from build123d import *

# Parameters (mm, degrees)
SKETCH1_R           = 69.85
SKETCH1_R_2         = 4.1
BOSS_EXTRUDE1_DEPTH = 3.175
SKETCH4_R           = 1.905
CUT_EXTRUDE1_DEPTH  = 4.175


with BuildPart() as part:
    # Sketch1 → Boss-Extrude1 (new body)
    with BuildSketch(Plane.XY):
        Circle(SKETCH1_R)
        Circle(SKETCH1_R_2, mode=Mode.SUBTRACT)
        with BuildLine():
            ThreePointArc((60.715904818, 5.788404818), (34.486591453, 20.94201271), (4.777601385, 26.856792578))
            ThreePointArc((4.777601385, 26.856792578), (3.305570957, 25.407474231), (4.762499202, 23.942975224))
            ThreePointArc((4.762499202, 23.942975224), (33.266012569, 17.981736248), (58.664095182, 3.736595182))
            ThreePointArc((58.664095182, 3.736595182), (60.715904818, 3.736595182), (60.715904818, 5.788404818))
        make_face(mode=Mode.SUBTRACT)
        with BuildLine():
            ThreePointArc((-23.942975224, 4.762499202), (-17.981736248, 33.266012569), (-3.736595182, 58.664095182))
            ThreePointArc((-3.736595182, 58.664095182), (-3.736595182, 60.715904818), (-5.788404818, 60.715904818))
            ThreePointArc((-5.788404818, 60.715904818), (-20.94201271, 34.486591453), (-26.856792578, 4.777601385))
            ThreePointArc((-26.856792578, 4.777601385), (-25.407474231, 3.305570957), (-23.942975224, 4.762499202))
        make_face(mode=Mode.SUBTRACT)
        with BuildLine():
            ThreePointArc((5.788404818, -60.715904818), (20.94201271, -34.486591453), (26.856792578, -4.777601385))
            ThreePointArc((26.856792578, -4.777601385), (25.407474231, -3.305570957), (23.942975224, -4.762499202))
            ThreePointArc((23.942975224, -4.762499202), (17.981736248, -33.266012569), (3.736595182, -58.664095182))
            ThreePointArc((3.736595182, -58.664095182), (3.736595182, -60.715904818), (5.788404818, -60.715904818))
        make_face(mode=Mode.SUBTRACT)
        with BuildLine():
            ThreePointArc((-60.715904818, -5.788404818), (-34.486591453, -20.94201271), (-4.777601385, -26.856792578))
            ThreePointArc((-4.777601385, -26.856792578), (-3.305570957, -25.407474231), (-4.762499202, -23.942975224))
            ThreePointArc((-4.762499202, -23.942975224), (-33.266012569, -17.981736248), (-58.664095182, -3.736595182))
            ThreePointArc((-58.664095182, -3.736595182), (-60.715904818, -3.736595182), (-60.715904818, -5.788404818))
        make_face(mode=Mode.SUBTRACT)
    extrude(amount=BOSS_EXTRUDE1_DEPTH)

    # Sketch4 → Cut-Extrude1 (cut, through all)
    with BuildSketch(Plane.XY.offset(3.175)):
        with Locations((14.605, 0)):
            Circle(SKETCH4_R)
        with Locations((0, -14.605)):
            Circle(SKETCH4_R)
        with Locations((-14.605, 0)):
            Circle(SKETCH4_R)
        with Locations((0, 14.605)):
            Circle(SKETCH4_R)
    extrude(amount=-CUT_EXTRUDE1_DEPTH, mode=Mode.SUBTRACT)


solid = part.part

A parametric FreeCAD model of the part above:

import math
import FreeCAD as App
import Part
import Sketcher
Q = App.Units.Quantity

doc = App.newDocument("Part")
body = doc.addObject("PartDesign::Body", "Body")

sketch1 = doc.addObject("Sketcher::SketchObject", "Sketch")
body.addObject(sketch1)
sketch1.AttachmentSupport = (doc.XY_Plane, [""])
sketch1.MapMode = "FlatFace"
sketch1.addGeometry(Part.Circle(App.Vector(0, 0, 0), App.Vector(0, 0, 1), 69.85), False)
sketch1.addGeometry(Part.ArcOfCircle(Part.Circle(App.Vector(-1.725997, 66.040062, 0), App.Vector(0, 0, 1), 92.946963), math.radians(-129.394922), math.radians(-91.881455)), False)
sketch1.addGeometry(Part.ArcOfCircle(Part.Circle(App.Vector(-59.69, -4.7625, 0), App.Vector(0, 0, 1), 1.450849), math.radians(45), math.radians(225)), False)
sketch1.addGeometry(Part.ArcOfCircle(Part.Circle(App.Vector(0.380004, 71.770806, 0), App.Vector(0, 0, 1), 95.851829), math.radians(-128.024141), math.radians(-93.075426)), False)
sketch1.addGeometry(Part.ArcOfCircle(Part.Circle(App.Vector(-4.762499, -25.399923, 0), App.Vector(0, 0, 1), 1.456948), math.radians(-90.593918), math.radians(90)), False)
sketch1.addGeometry(Part.ArcOfCircle(Part.Circle(App.Vector(-66.040062, -1.725997, 0), App.Vector(0, 0, 1), 92.946963), math.radians(-39.394922), math.radians(-1.881455)), False)
sketch1.addGeometry(Part.ArcOfCircle(Part.Circle(App.Vector(4.7625, -59.69, 0), App.Vector(0, 0, 1), 1.450849), math.radians(135), math.radians(315)), False)
sketch1.addGeometry(Part.ArcOfCircle(Part.Circle(App.Vector(-71.770806, 0.380004, 0), App.Vector(0, 0, 1), 95.851829), math.radians(-38.024141), math.radians(-3.075426)), False)
sketch1.addGeometry(Part.ArcOfCircle(Part.Circle(App.Vector(25.399923, -4.762499, 0), App.Vector(0, 0, 1), 1.456948), math.radians(-0.593918), math.radians(180)), False)
sketch1.addGeometry(Part.ArcOfCircle(Part.Circle(App.Vector(71.770806, -0.380004, 0), App.Vector(0, 0, 1), 95.851829), math.radians(141.975859), math.radians(176.924574)), False)
sketch1.addGeometry(Part.ArcOfCircle(Part.Circle(App.Vector(-25.399923, 4.762499, 0), App.Vector(0, 0, 1), 1.456948), math.radians(179.406082), math.radians(360)), False)
sketch1.addGeometry(Part.ArcOfCircle(Part.Circle(App.Vector(66.040062, 1.725997, 0), App.Vector(0, 0, 1), 92.946963), math.radians(140.605078), math.radians(178.118545)), False)
sketch1.addGeometry(Part.ArcOfCircle(Part.Circle(App.Vector(-4.7625, 59.69, 0), App.Vector(0, 0, 1), 1.450849), math.radians(-45), math.radians(135)), False)
sketch1.addGeometry(Part.Circle(App.Vector(0, 0, 0), App.Vector(0, 0, 1), 4.1), False)
sketch1.addGeometry(Part.ArcOfCircle(Part.Circle(App.Vector(1.725997, -66.040062, 0), App.Vector(0, 0, 1), 92.946963), math.radians(50.605078), math.radians(88.118545)), False)
sketch1.addGeometry(Part.ArcOfCircle(Part.Circle(App.Vector(59.69, 4.7625, 0), App.Vector(0, 0, 1), 1.450849), math.radians(-135), math.radians(45)), False)
sketch1.addGeometry(Part.ArcOfCircle(Part.Circle(App.Vector(-0.380004, -71.770806, 0), App.Vector(0, 0, 1), 95.851829), math.radians(51.975859), math.radians(86.924574)), False)
sketch1.addGeometry(Part.ArcOfCircle(Part.Circle(App.Vector(4.762499, 25.399923, 0), App.Vector(0, 0, 1), 1.456948), math.radians(89.406082), math.radians(270)), False)
sketch1.addConstraint(Sketcher.Constraint("Coincident", 1, 1, 2, 2))
sketch1.addConstraint(Sketcher.Constraint("Coincident", 2, 1, 3, 1))
sketch1.addConstraint(Sketcher.Constraint("Coincident", 3, 2, 4, 2))
sketch1.addConstraint(Sketcher.Constraint("Coincident", 4, 1, 1, 2))
sketch1.addConstraint(Sketcher.Constraint("Coincident", 5, 1, 6, 2))
sketch1.addConstraint(Sketcher.Constraint("Coincident", 6, 1, 7, 1))
sketch1.addConstraint(Sketcher.Constraint("Coincident", 7, 2, 8, 2))
sketch1.addConstraint(Sketcher.Constraint("Coincident", 8, 1, 5, 2))
sketch1.addConstraint(Sketcher.Constraint("Coincident", 9, 2, 10, 2))
sketch1.addConstraint(Sketcher.Constraint("Coincident", 10, 1, 11, 2))
sketch1.addConstraint(Sketcher.Constraint("Coincident", 11, 1, 12, 2))
sketch1.addConstraint(Sketcher.Constraint("Coincident", 12, 1, 9, 1))
sketch1.addConstraint(Sketcher.Constraint("Coincident", 14, 1, 15, 2))
sketch1.addConstraint(Sketcher.Constraint("Coincident", 15, 1, 16, 1))
sketch1.addConstraint(Sketcher.Constraint("Coincident", 16, 2, 17, 2))
sketch1.addConstraint(Sketcher.Constraint("Coincident", 17, 1, 14, 2))
sketch1.addConstraint(Sketcher.Constraint("Coincident", 0, 3, -1, 1))
sketch1.addConstraint(Sketcher.Constraint("Coincident", 13, 3, -1, 1))
sketch1.addConstraint(Sketcher.Constraint("Equal", 1, 5))
sketch1.addConstraint(Sketcher.Constraint("Equal", 2, 6))
sketch1.addConstraint(Sketcher.Constraint("Equal", 3, 7))
sketch1.addConstraint(Sketcher.Constraint("Equal", 4, 8))
sketch1.addConstraint(Sketcher.Constraint("Equal", 7, 9))
sketch1.addConstraint(Sketcher.Constraint("Equal", 8, 10))
sketch1.addConstraint(Sketcher.Constraint("Equal", 5, 11))
sketch1.addConstraint(Sketcher.Constraint("Equal", 6, 12))
sketch1.addConstraint(Sketcher.Constraint("Equal", 11, 14))
sketch1.addConstraint(Sketcher.Constraint("Equal", 12, 15))
sketch1.addConstraint(Sketcher.Constraint("Equal", 9, 16))
sketch1.addConstraint(Sketcher.Constraint("Equal", 10, 17))
sketch1.addConstraint(Sketcher.Constraint("Symmetric", 7, 3, 9, 3, -1, 1))
sketch1.addConstraint(Sketcher.Constraint("Symmetric", 8, 3, 10, 3, -1, 1))
sketch1.addConstraint(Sketcher.Constraint("Symmetric", 5, 3, 11, 3, -1, 1))
sketch1.addConstraint(Sketcher.Constraint("Symmetric", 6, 3, 12, 3, -1, 1))
sketch1.addConstraint(Sketcher.Constraint("Symmetric", 1, 3, 14, 3, -1, 1))
sketch1.addConstraint(Sketcher.Constraint("Symmetric", 2, 3, 15, 3, -1, 1))
sketch1.addConstraint(Sketcher.Constraint("Symmetric", 3, 3, 16, 3, -1, 1))
sketch1.addConstraint(Sketcher.Constraint("Symmetric", 4, 3, 17, 3, -1, 1))
sketch1.addConstraint(Sketcher.Constraint("Horizontal", 2, 3, 8, 3))
sketch1.addConstraint(Sketcher.Constraint("Horizontal", 8, 3, 7, 2))
sketch1.addConstraint(Sketcher.Constraint("Vertical", 4, 3, 12, 3))
sketch1.addConstraint(Sketcher.Constraint("Vertical", 12, 3, 3, 2))
sketch1.addConstraint(Sketcher.Constraint("Diameter", 0, Q("5.5 in")))
sketch1.addConstraint(Sketcher.Constraint("Diameter", 13, 8.2))
sketch1.addConstraint(Sketcher.Constraint("DistanceX", 2, 3, -1, 1, Q("2.35 in")))
sketch1.addConstraint(Sketcher.Constraint("DistanceY", 6, 3, -1, 1, Q("2.35 in")))
sketch1.addConstraint(Sketcher.Constraint("DistanceY", 2, 3, -1, 1, Q("0.1875 in")))
sketch1.addConstraint(Sketcher.Constraint("DistanceX", 4, 3, -1, 1, Q("0.1875 in")))
sketch1.addConstraint(Sketcher.Constraint("Radius", 2, 1.450849))
sketch1.addConstraint(Sketcher.Constraint("Radius", 3, 95.851829))
sketch1.addConstraint(Sketcher.Constraint("Radius", 1, 92.946963))
sketch1.addConstraint(Sketcher.Constraint("Radius", 4, 1.456948))
sketch1.addConstraint(Sketcher.Constraint("DistanceX", 4, 1, -1, 1, 4.777601))
sketch1.addConstraint(Sketcher.Constraint("DistanceY", 8, 1, -1, 1, 4.777601))
sketch1.addConstraint(Sketcher.Constraint("DistanceX", 1, 3, 3, 3, 2.106))
sketch1.addConstraint(Sketcher.Constraint("DistanceY", 5, 3, 7, 3, 2.106))
sketch1.addConstraint(Sketcher.Constraint("DistanceX", 7, 3, 1, 1, 11.054901))
sketch1.addConstraint(Sketcher.Constraint("DistanceY", 2, 1, 5, 3, 2.010598))
sketch1.addConstraint(Sketcher.Constraint("DistanceY", 16, 3, 5, 1, 11.054901))
sketch1.addConstraint(Sketcher.Constraint("DistanceX", 14, 3, 6, 1, 2.010598))
pad1 = doc.addObject("PartDesign::Pad", "Pad")
body.addObject(pad1)
pad1.Profile = sketch1
pad1.Length = Q("0.125 in")

sketch2 = doc.addObject("Sketcher::SketchObject", "Sketch001")
body.addObject(sketch2)
sketch2.AttachmentSupport = (doc.XY_Plane, [""])
sketch2.MapMode = "FlatFace"
sketch2.AttachmentOffset = App.Placement(App.Vector(0, 0, 0.125 * 25.4), App.Rotation())
sketch2.addGeometry(Part.Circle(App.Vector(14.6, 0, 0), App.Vector(0, 0, 1), 1.9), False)
sketch2.addGeometry(Part.Circle(App.Vector(0, -14.6, 0), App.Vector(0, 0, 1), 1.9), False)
sketch2.addGeometry(Part.Circle(App.Vector(-14.6, 0, 0), App.Vector(0, 0, 1), 1.9), False)
sketch2.addGeometry(Part.Circle(App.Vector(0, 14.6, 0), App.Vector(0, 0, 1), 1.9), False)
sketch2.addConstraint(Sketcher.Constraint("Equal", 0, 1))
sketch2.addConstraint(Sketcher.Constraint("Equal", 1, 2))
sketch2.addConstraint(Sketcher.Constraint("Equal", 2, 3))
sketch2.addConstraint(Sketcher.Constraint("Symmetric", 0, 3, 2, 3, -1, 1))
sketch2.addConstraint(Sketcher.Constraint("Symmetric", 1, 3, 3, 3, -1, 1))
sketch2.addConstraint(Sketcher.Constraint("PointOnObject", 0, 3, -1))
sketch2.addConstraint(Sketcher.Constraint("PointOnObject", 1, 3, -2))
sketch2.addConstraint(Sketcher.Constraint("Diameter", 0, Q("0.15 in")))
sketch2.addConstraint(Sketcher.Constraint("DistanceX", 2, 3, 0, 3, Q("1.15 in")))
sketch2.addConstraint(Sketcher.Constraint("DistanceY", 1, 3, 3, 3, Q("1.15 in")))
pocket1 = doc.addObject("PartDesign::Pocket", "Pocket")
body.addObject(pocket1)
pocket1.Profile = sketch2
pocket1.Type = "ThroughAll"

doc.recompute()
